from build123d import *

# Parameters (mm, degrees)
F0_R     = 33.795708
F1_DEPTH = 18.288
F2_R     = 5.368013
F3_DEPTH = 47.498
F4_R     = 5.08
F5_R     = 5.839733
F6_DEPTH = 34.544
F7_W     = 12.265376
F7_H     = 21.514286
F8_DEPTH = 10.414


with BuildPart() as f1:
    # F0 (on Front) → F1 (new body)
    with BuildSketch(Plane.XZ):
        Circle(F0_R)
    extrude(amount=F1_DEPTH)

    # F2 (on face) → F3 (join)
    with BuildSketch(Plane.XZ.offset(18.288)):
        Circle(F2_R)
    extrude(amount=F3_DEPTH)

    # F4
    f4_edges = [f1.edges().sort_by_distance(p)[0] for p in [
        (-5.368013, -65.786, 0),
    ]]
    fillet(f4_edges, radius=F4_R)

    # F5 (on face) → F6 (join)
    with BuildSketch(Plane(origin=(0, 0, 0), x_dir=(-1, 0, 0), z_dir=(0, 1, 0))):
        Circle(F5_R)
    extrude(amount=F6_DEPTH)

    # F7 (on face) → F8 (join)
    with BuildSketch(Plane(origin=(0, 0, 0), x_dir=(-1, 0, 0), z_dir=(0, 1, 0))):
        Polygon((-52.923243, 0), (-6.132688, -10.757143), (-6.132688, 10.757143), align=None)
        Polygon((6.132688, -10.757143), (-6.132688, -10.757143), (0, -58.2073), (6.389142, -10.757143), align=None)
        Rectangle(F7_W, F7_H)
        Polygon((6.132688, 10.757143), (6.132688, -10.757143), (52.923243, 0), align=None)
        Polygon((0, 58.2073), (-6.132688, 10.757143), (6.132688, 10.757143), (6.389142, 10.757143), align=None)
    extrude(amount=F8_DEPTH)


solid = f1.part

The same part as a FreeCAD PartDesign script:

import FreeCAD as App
import Part
import Sketcher

V = App.Vector
Q = App.Units.Quantity


def edges_at(feature, points):
    """Names of the edges that pass closest to the given points."""
    edges = feature.Shape.Edges
    near = lambda p: min(range(len(edges)), key=lambda i: edges[i].distToShape(Part.Vertex(*p))[0])
    return sorted({f"Edge{near(p) + 1}" for p in points})


def add_polygon(sketch, points):
    """Adds a closed chain of lines whose ends are joined by coincident constraints."""
    first, n = sketch.GeometryCount, len(points)
    for a, b in zip(points, points[1:] + points[:1]):
        sketch.addGeometry(Part.LineSegment(App.Vector(*a, 0), App.Vector(*b, 0)), False)
    for i in range(n):
        sketch.addConstraint(Sketcher.Constraint("Coincident", first + i, 2, first + (i + 1) % n, 1))

doc = App.newDocument("Part")
body = doc.addObject("PartDesign::Body", "Body")

# Sketch on XZ plane
sketch1 = doc.addObject("Sketcher::SketchObject", "Sketch")
body.addObject(sketch1)
sketch1.AttachmentSupport = (doc.XZ_Plane, [""])
sketch1.MapMode = "FlatFace"
sketch1.addGeometry(Part.Circle(V(0, 0, 0), V(0, 0, 1), 34), False)
sketch1.addConstraint([
    Sketcher.Constraint("Coincident", 0, 3, -1, 1),
    Sketcher.Constraint("Diameter", 0, 67.591416),
])
pad1 = doc.addObject("PartDesign::Pad", "Pad")
body.addObject(pad1)
pad1.Profile = sketch1
pad1.Length = Q("0.72 in")

# Sketch on XZ plane
sketch2 = doc.addObject("Sketcher::SketchObject", "Sketch001")
body.addObject(sketch2)
sketch2.AttachmentSupport = (doc.XZ_Plane, [""])
sketch2.MapMode = "FlatFace"
sketch2.AttachmentOffset = App.Placement(V(0, 0, 0.72 * 25.4), App.Rotation())
sketch2.addGeometry(Part.Circle(V(0, 0, 0), V(0, 0, 1), 5), False)
sketch2.addConstraint([
    Sketcher.Constraint("Coincident", 0, 3, -1, 1),
    Sketcher.Constraint("Diameter", 0, 10.736026),
])
pad2 = doc.addObject("PartDesign::Pad", "Pad001")
body.addObject(pad2)
pad2.Profile = sketch2
pad2.Length = Q("1.87 in")
doc.recompute()

fillet = doc.addObject("PartDesign::Fillet", "Fillet")
body.addObject(fillet)
fillet.Base = (pad2, edges_at(pad2, [(-5.368, -65.786, 0)]))
fillet.Radius = Q("0.2 in")

# Sketch on XZ plane
sketch3 = doc.addObject("Sketcher::SketchObject", "Sketch002")
body.addObject(sketch3)
sketch3.AttachmentSupport = (doc.XZ_Plane, [""])
sketch3.MapMode = "FlatFace"
sketch3.addGeometry(Part.Circle(V(0, 0, 0), V(0, 0, 1), 6), False)
sketch3.addConstraint([
    Sketcher.Constraint("Coincident", 0, 3, -1, 1),
    Sketcher.Constraint("Diameter", 0, 11.679466),
])
pad3 = doc.addObject("PartDesign::Pad", "Pad002")
body.addObject(pad3)
pad3.Profile = sketch3
pad3.Length = Q("1.36 in")
pad3.Reversed = True

# Sketch on XZ plane
sketch4 = doc.addObject("Sketcher::SketchObject", "Sketch003")
body.addObject(sketch4)
sketch4.AttachmentSupport = (doc.XZ_Plane, [""])
sketch4.MapMode = "FlatFace"
add_polygon(sketch4, [(-52.92, 0), (-6.13, 10.76), (-6.39, 10.76), (0, 58.21), (6.13, 10.76), (52.92, 0), (6.13, -10.76), (0, -58.21), (-6.39, -10.76), (-6.13, -10.76)])  # lines 0-9
sketch4.addConstraint([
    Sketcher.Constraint("Horizontal", 1),
    Sketcher.Constraint("Horizontal", 8),
    Sketcher.Constraint("Symmetric", 0, 2, 5, 2, -1, 1),
    Sketcher.Constraint("Symmetric", 2, 2, 6, 2, -1, 1),
    Sketcher.Constraint("Symmetric", 3, 2, 8, 2, -1, 1),
    Sketcher.Constraint("Symmetric", 4, 2, 9, 2, -1, 1),
    Sketcher.Constraint("Symmetric", 0, 2, 3, 2, -2),
    Sketcher.Constraint("PointOnObject", 2, 2, -2),
    Sketcher.Constraint("PointOnObject", 4, 2, -1),
    Sketcher.Constraint("Vertical", 1, 2, 7, 2),
    Sketcher.Constraint("DistanceY", -1, 1, 2, 2, 58.2073),
    Sketcher.Constraint("DistanceX", 9, 2, 1, 2, 46.534101),
    Sketcher.Constraint("DistanceX", 1, 2, 1, 1, 0.256454),
    Sketcher.Constraint("DistanceX", 1, 2, -1, 1, 6.389142),
    Sketcher.Constraint("Distance", 0, 48.011167),
])
pad4 = doc.addObject("PartDesign::Pad", "Pad003")
body.addObject(pad4)
pad4.Profile = sketch4
pad4.Length = Q("0.41 in")
pad4.Reversed = True

doc.recompute()
